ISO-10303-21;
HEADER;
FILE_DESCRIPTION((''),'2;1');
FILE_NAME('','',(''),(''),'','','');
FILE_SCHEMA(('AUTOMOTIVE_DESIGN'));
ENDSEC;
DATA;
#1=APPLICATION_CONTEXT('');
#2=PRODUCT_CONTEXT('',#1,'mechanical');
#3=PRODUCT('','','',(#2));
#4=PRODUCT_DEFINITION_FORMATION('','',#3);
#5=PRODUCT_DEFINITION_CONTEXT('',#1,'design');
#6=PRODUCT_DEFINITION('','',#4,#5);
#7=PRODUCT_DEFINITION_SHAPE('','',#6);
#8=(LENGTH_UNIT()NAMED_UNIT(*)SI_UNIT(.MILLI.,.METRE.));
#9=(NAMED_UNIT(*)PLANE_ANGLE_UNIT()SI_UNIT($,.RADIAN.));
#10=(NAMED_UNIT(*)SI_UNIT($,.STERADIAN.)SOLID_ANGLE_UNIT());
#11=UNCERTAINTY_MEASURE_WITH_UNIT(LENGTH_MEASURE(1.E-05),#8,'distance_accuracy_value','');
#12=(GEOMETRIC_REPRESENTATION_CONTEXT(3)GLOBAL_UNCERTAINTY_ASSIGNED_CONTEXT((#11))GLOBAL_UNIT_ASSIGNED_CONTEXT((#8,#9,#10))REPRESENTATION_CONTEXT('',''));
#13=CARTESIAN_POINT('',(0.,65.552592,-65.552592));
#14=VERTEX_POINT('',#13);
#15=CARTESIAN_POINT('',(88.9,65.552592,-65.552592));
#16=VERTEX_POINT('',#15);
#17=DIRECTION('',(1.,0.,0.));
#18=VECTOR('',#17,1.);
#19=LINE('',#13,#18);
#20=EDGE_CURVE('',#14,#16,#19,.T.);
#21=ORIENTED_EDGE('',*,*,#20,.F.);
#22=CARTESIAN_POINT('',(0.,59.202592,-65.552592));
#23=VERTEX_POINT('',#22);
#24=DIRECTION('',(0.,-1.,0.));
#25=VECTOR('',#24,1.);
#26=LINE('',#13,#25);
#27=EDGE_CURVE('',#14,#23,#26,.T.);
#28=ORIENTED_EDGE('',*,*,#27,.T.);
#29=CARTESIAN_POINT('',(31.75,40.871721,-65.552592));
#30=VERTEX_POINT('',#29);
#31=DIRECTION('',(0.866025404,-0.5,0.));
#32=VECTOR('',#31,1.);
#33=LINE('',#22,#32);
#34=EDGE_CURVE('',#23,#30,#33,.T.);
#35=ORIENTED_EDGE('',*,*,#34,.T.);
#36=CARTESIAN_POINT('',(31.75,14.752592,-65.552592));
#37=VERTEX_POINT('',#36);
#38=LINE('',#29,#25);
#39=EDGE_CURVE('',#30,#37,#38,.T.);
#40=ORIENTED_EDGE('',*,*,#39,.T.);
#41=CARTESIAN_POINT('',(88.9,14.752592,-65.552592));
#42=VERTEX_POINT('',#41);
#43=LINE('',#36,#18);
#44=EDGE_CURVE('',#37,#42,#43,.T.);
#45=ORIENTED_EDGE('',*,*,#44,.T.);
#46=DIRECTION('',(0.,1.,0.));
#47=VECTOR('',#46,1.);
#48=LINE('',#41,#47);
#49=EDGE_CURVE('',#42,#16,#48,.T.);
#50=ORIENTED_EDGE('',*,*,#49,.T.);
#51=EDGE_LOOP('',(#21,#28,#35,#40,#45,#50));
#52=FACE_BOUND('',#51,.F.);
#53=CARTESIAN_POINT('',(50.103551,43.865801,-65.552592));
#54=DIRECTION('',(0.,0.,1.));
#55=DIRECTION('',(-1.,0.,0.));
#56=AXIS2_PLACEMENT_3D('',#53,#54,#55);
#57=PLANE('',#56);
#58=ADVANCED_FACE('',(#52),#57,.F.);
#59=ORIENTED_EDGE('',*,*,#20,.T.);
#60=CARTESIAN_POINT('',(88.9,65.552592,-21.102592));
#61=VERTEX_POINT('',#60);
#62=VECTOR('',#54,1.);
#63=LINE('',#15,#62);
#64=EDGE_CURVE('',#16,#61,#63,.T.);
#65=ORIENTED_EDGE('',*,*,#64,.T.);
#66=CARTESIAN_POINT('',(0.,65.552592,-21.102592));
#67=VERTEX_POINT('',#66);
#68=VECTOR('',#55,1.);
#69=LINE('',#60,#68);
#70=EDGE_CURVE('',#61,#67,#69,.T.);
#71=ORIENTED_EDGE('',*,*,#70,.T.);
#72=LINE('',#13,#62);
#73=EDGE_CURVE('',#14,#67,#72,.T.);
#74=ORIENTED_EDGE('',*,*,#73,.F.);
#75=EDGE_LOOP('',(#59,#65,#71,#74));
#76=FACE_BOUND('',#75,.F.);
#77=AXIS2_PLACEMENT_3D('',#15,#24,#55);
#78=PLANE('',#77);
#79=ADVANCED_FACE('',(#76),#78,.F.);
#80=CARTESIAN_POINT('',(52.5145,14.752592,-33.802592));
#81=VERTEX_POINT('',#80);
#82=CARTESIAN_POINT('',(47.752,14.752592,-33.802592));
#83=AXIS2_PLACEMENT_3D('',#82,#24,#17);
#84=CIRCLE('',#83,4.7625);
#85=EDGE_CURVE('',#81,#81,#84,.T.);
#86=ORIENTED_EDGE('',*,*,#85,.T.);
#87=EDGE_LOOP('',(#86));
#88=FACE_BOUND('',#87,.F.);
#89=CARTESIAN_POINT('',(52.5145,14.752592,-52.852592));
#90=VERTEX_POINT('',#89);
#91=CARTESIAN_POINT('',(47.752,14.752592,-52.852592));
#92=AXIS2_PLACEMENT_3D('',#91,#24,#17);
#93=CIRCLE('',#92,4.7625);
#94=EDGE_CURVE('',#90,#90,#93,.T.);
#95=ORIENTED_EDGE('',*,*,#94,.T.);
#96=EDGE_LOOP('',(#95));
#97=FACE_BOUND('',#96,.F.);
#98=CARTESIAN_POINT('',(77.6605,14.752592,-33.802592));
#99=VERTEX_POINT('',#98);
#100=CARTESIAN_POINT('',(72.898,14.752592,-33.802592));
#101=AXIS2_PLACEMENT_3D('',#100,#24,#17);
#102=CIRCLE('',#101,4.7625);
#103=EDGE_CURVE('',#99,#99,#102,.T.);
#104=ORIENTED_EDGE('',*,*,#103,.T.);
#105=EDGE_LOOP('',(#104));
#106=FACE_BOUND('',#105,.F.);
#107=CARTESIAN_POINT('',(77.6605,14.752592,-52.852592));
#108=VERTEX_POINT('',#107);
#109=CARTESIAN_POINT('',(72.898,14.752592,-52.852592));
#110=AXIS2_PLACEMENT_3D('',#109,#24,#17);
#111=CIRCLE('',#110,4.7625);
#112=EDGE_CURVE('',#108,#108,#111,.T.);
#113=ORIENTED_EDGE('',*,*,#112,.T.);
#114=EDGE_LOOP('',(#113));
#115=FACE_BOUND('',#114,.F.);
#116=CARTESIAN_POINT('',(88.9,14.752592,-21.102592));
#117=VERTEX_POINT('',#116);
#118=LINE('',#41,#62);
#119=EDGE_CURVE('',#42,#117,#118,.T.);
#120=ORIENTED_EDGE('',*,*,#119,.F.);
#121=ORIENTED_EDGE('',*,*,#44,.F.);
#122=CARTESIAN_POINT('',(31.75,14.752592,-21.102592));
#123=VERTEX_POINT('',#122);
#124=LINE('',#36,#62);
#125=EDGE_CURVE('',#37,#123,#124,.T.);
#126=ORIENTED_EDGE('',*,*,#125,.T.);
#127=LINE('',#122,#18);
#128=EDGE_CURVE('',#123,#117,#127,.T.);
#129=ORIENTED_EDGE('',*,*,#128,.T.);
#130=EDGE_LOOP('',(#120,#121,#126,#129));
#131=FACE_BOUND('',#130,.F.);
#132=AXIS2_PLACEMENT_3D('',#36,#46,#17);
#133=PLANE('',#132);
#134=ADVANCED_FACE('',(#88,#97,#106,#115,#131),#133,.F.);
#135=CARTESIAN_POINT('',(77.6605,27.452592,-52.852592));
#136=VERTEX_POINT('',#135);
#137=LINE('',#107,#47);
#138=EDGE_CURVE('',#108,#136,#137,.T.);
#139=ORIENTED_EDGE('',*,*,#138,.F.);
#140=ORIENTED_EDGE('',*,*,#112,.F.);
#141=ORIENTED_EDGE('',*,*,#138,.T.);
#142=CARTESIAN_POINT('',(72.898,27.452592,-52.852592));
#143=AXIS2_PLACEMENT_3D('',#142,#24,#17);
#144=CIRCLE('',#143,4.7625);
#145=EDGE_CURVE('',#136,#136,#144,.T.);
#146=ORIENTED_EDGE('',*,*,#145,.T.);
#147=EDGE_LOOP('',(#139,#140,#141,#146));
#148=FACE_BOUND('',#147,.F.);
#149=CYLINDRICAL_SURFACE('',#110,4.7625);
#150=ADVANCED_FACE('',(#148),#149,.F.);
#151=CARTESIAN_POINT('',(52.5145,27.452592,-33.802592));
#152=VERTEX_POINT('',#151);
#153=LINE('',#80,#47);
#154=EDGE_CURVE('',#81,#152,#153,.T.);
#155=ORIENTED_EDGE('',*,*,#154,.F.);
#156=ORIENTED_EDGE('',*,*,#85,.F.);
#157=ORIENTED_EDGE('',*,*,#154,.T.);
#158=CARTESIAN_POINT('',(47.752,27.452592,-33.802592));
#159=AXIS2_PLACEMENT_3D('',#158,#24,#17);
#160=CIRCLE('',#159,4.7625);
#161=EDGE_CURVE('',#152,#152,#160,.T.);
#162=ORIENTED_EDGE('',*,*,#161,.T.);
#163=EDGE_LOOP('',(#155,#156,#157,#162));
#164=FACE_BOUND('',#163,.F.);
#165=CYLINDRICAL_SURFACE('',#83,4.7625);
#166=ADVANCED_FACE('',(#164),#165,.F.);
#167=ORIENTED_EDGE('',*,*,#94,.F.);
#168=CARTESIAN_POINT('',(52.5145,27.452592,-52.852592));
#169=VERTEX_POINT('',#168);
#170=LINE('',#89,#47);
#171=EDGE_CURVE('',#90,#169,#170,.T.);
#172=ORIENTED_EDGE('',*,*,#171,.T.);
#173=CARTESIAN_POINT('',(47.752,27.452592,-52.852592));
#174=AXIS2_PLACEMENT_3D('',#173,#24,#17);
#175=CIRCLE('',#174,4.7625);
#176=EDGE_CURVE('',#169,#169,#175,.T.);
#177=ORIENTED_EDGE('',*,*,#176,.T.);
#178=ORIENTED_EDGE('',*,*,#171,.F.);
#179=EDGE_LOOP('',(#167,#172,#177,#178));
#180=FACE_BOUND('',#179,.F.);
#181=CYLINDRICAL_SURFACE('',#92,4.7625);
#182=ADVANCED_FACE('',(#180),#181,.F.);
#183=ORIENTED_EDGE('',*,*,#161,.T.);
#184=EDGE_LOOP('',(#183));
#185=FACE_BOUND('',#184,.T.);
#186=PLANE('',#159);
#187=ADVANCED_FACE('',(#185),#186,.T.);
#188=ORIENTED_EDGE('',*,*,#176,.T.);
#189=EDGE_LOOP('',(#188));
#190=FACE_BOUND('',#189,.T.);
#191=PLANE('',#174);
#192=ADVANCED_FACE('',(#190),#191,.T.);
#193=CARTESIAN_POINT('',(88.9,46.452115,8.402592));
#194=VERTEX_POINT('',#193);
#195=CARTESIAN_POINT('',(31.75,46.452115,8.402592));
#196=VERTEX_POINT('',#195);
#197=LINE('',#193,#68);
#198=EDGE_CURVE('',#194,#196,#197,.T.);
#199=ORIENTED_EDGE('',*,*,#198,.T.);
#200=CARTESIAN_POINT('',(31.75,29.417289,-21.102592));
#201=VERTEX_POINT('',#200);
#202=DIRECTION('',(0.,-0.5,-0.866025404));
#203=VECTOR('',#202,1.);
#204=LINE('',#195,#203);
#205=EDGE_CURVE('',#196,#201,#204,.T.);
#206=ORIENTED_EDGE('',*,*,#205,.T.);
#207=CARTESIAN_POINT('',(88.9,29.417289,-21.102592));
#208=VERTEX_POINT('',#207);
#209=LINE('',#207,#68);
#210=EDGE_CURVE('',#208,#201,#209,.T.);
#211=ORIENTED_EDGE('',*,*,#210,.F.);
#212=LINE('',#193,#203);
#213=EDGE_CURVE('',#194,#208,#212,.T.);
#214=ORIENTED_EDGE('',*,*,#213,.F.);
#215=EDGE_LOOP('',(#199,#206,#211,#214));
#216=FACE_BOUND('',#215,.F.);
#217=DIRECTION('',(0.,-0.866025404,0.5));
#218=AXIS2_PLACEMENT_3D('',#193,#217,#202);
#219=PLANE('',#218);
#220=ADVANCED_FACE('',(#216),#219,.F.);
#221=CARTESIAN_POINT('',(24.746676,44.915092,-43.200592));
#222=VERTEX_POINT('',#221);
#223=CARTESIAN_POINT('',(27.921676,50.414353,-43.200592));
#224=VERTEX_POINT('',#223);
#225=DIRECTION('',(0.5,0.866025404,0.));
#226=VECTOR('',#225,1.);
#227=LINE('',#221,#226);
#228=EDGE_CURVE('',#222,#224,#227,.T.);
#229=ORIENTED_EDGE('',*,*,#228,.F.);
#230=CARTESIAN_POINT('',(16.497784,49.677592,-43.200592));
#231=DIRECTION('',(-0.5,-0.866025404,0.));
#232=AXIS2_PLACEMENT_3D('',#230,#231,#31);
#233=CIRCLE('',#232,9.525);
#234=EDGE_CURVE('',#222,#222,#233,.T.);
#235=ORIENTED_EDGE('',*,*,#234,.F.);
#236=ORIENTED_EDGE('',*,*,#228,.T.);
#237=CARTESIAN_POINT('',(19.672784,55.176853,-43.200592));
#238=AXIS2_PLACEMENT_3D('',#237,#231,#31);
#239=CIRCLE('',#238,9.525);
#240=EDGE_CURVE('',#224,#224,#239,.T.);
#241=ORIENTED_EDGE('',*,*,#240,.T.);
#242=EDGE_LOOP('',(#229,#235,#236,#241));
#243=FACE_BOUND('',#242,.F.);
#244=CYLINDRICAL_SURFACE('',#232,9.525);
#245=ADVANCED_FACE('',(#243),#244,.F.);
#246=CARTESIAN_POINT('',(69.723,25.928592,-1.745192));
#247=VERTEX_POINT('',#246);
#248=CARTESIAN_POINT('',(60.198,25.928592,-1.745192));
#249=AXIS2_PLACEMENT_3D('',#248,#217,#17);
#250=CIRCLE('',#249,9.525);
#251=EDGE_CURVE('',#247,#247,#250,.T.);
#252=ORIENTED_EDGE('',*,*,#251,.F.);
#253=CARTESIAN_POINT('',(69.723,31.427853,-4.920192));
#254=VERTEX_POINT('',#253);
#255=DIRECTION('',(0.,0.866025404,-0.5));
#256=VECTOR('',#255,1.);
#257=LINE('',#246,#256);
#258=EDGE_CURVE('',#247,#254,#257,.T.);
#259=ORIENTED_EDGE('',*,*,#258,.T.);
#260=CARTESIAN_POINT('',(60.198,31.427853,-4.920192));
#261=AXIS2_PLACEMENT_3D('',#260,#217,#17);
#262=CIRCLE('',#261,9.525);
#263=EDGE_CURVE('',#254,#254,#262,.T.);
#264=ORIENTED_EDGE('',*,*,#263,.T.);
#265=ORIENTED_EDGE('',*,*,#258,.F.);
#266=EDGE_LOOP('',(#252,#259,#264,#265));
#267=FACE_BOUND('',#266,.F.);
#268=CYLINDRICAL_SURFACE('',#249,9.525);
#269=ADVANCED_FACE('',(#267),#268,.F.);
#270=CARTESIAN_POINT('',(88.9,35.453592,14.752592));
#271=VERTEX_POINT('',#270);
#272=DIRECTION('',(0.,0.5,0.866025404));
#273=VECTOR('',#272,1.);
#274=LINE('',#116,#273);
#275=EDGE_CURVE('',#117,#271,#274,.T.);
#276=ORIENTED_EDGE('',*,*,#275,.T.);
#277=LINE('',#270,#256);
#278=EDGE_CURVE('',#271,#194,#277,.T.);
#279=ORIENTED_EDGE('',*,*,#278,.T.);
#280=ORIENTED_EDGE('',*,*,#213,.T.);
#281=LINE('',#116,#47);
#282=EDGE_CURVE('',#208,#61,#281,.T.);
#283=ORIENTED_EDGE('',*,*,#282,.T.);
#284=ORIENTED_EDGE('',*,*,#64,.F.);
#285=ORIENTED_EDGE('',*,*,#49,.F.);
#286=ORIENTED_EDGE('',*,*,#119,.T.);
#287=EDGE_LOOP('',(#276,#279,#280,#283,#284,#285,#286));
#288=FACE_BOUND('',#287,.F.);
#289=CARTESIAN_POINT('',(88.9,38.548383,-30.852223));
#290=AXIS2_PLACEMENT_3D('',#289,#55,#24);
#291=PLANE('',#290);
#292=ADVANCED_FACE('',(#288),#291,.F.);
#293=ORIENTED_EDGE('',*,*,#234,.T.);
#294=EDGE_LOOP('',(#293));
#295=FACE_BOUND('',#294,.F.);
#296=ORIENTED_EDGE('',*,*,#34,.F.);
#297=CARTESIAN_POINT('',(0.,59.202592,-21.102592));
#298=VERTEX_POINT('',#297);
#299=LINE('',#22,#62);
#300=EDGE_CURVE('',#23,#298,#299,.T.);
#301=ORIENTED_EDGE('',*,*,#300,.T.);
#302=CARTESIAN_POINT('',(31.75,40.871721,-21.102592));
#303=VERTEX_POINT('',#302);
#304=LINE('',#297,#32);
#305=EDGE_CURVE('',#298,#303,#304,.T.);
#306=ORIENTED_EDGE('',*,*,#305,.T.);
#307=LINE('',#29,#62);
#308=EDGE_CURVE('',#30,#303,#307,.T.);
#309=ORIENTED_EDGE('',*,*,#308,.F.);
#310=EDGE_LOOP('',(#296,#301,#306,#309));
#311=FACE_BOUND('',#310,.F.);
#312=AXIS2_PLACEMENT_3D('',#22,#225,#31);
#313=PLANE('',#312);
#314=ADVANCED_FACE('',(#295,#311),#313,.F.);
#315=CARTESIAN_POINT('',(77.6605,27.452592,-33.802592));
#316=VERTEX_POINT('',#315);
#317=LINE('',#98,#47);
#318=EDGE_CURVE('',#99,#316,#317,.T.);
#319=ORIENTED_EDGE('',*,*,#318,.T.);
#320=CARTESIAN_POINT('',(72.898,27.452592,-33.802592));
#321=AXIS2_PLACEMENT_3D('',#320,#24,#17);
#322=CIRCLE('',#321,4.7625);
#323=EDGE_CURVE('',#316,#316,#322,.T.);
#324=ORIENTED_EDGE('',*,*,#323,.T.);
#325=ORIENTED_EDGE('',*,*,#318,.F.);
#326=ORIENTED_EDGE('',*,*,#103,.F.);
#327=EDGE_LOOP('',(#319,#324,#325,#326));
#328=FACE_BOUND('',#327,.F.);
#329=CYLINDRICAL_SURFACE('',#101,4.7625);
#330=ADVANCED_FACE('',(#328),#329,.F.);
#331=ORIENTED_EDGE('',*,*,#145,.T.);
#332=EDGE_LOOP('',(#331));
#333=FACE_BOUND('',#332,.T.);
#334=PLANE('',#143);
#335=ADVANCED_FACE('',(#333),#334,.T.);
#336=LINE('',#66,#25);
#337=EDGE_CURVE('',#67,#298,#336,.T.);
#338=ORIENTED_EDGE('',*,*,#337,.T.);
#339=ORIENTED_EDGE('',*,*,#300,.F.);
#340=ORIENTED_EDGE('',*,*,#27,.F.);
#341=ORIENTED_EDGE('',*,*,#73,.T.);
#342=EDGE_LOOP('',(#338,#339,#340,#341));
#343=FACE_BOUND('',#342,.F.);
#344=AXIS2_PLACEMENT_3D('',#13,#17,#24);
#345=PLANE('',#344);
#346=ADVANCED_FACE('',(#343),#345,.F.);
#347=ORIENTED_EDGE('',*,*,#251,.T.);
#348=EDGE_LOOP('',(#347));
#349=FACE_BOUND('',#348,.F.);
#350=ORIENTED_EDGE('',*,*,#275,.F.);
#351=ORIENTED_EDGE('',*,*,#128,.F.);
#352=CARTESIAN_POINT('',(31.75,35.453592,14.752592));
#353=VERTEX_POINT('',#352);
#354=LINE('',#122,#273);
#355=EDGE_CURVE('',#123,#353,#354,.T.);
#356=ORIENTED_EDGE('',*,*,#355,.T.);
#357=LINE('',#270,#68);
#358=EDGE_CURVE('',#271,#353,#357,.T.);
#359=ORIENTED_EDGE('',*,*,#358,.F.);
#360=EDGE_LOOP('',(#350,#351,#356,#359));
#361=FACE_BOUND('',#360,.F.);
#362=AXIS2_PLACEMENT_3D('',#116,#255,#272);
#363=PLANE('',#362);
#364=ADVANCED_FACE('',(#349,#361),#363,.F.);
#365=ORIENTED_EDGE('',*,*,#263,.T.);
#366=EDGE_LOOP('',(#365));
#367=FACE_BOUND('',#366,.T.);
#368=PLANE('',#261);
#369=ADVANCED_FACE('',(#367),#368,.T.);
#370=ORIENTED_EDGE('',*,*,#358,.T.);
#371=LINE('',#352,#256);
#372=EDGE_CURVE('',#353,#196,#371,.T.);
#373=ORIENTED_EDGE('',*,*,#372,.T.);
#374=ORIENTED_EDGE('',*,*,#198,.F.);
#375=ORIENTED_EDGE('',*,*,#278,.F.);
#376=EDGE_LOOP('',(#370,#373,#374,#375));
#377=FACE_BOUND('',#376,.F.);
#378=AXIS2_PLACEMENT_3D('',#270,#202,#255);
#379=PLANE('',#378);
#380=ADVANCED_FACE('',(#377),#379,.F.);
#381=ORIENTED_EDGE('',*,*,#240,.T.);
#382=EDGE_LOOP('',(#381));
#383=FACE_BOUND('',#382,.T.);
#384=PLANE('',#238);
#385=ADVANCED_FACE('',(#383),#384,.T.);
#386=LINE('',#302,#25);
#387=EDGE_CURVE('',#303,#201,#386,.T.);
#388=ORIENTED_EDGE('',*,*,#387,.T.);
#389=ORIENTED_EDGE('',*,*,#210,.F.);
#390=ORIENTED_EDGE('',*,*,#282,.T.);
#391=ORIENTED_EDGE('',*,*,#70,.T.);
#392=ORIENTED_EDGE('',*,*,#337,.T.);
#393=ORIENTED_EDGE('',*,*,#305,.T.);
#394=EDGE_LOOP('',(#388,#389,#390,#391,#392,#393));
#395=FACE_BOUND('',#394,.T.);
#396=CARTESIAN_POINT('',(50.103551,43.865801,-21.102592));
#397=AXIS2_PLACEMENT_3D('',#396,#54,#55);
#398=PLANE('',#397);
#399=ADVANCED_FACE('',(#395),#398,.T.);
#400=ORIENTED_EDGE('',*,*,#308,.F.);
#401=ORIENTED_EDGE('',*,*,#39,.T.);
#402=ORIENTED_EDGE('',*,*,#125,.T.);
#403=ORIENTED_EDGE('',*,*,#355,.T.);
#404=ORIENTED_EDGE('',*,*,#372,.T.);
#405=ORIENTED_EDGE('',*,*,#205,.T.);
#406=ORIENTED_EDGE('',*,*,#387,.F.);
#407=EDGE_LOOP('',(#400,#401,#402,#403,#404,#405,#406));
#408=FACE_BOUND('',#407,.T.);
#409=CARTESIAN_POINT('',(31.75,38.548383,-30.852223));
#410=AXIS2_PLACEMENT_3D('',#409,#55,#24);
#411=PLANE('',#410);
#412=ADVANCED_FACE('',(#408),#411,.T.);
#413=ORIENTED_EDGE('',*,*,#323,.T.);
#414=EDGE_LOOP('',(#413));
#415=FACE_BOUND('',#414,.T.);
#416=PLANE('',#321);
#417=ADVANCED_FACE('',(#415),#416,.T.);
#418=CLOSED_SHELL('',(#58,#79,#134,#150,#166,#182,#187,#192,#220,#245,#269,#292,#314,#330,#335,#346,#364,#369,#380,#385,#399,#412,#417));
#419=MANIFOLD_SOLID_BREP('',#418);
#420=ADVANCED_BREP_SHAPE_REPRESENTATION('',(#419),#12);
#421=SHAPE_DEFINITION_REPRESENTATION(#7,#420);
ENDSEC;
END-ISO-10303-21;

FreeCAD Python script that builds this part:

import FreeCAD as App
import Part
import Sketcher
from FreeCAD import Vector
Q = App.Units.Quantity


def add_polygon(sketch, points):
    """Adds a closed chain of lines whose ends are joined by coincident constraints."""
    first, n = sketch.GeometryCount, len(points)
    for a, b in zip(points, points[1:] + points[:1]):
        sketch.addGeometry(Part.LineSegment(App.Vector(*a, 0), App.Vector(*b, 0)), False)
    for i in range(n):
        sketch.addConstraint(Sketcher.Constraint("Coincident", first + i, 2, first + (i + 1) % n, 1))

doc = App.newDocument("Part")
params = doc.addObject("Spreadsheet::Sheet", "Params")
for row, (alias, value) in enumerate([
    ("sketch1_height", "2 in"),
    ("sketch1_width", "3.5 in"),
    ("sketch1_width2", "2.25 in"),
    ("sketch1_height2", "0.25 in"),
    ("pad1_length", "1.75 in"),
    ("sketch2_diameter", "0.75 in"),
    ("pocket1_length", "0.25 in"),
    ("sketch3_height", "2 in"),
    ("sketch3_length", "0.5 in"),
    ("sketch3_width", "1.75 in"),
    ("sketch3_length2", "1.63 in"),
    ("pad2_length", "2.25 in"),
    ("sketch4_diameter", "0.75 in"),
    ("pocket2_length", "0.25 in"),
    ("sketch5_diameter", "0.375 in"),
    ("pocket3_length", "0.5 in"),
], start=1):
    params.set(f"A{row}", alias)
    params.set(f"B{row}", "=" + value)
    params.setAlias(f"B{row}", alias)

body = doc.addObject("PartDesign::Body", "Body")

# Sketch on XZ plane
sketch1 = doc.addObject("Sketcher::SketchObject", "Sketch")
body.addObject(sketch1)
sketch1.AttachmentSupport = (doc.XZ_Plane, [""])
sketch1.MapMode = "FlatFace"
add_polygon(sketch1, [(89, 0), (89, -6), (57, -25), (57, -51), (0, -51), (0, 0)])  # lines 0-5
sketch1.addConstraint([
    Sketcher.Constraint("Vertical", 0),
    Sketcher.Constraint("Vertical", 2),
    Sketcher.Constraint("Horizontal", 3),
    Sketcher.Constraint("Vertical", 4),
    Sketcher.Constraint("Horizontal", 5),
    Sketcher.Constraint("Coincident", 4, 2, -1, 1),
    Sketcher.Constraint("DistanceY", 4, 1, 4, 2, Q("2 in")),
    Sketcher.Constraint("DistanceX", 5, 1, 5, 2, Q("3.5 in")),
    Sketcher.Constraint("Angle", 1, Q("-150 deg")),
    Sketcher.Constraint("DistanceX", 3, 2, 3, 1, Q("2.25 in")),
    Sketcher.Constraint("DistanceY", 0, 2, 0, 1, Q("0.25 in")),
])
sketch1.setExpression("Constraints[12]", "Params.sketch1_height")
sketch1.setExpression("Constraints[13]", "Params.sketch1_width")
sketch1.setExpression("Constraints[15]", "Params.sketch1_width2")
sketch1.setExpression("Constraints[16]", "Params.sketch1_height2")
pad1 = doc.addObject("PartDesign::Pad", "Pad")
body.addObject(pad1)
pad1.Profile = sketch1
pad1.setExpression("Length", "Params.pad1_length")
pad1.Reversed = True

# Sketch on an angled plane
sketch2 = doc.addObject("Sketcher::SketchObject", "Sketch001")
body.addObject(sketch2)
sketch2.Placement = App.Placement(Vector(24.974631, 0, -43.257329), App.Rotation(Vector(-0.866025404, 0, -0.5), Vector(0, 1, 0), Vector(0.5, 0, -0.866025404), "ZXY"))
sketch2.addGeometry(Part.Circle(Vector(-55, 22, 0), Vector(0, 0, 1), 10), False)
sketch2.addConstraint([
    Sketcher.Constraint("Diameter", 0, Q("0.75 in")),
    Sketcher.Constraint("DistanceY", -1, 1, 0, 3, Q("0.88 in")),
    Sketcher.Constraint("DistanceX", 0, 3, -1, 1, 54.764658),
])
sketch2.setExpression("Constraints[0]", "Params.sketch2_diameter")
pocket1 = doc.addObject("PartDesign::Pocket", "Pocket")
body.addObject(pocket1)
pocket1.Profile = sketch2
pocket1.setExpression("Length", "Params.pocket1_length")

# Sketch on YZ plane
sketch3 = doc.addObject("Sketcher::SketchObject", "Sketch002")
body.addObject(sketch3)
sketch3.AttachmentSupport = (doc.YZ_Plane, [""])
sketch3.MapMode = "FlatFace"
add_polygon(sketch3, [(80, -30), (44, -51), (0, -51), (0, 0), (44, 0), (44, -36), (74, -19)])  # lines 0-6
sketch3.addConstraint([
    Sketcher.Constraint("Horizontal", 1),
    Sketcher.Constraint("Vertical", 2),
    Sketcher.Constraint("Horizontal", 3),
    Sketcher.Constraint("Vertical", 4),
    Sketcher.Constraint("Coincident", 2, 2, -1, 1),
    Sketcher.Constraint("Parallel", 0, 5),
    Sketcher.Constraint("Perpendicular", 5, 6),
    Sketcher.Constraint("Vertical", 0, 2, 3, 2),
    Sketcher.Constraint("DistanceY", 2, 1, 2, 2, Q("2 in")),
    Sketcher.Constraint("Angle", 0, Q("-150 deg")),
    Sketcher.Constraint("Distance", 6, Q("0.5 in")),
    Sketcher.Constraint("DistanceX", 1, 2, 1, 1, Q("1.75 in")),
    Sketcher.Constraint("Distance", 0, Q("1.63 in")),
])
sketch3.setExpression("Constraints[15]", "Params.sketch3_height")
sketch3.setExpression("Constraints[17]", "Params.sketch3_length")
sketch3.setExpression("Constraints[18]", "Params.sketch3_width")
sketch3.setExpression("Constraints[19]", "Params.sketch3_length2")
pad2 = doc.addObject("PartDesign::Pad", "Pad001")
body.addObject(pad2)
pad2.Profile = sketch3
pad2.setExpression("Length", "Params.pad2_length")

# Sketch on an angled plane
sketch4 = doc.addObject("Sketcher::SketchObject", "Sketch003")
body.addObject(sketch4)
sketch4.Placement = App.Placement(Vector(0, 33.109545, -57.347415), App.Rotation(Vector(-1, 0, 0), Vector(0, 0.866025404, 0.5), Vector(0, 0.5, -0.866025404), "ZXY"))
sketch4.addGeometry(Part.Circle(Vector(-29, 35, 0), Vector(0, 0, 1), 10), False)
sketch4.addConstraint([
    Sketcher.Constraint("Diameter", 0, Q("0.75 in")),
    Sketcher.Constraint("DistanceX", 0, 3, -1, 1, Q("1.13 in")),
    Sketcher.Constraint("DistanceY", -1, 1, 0, 3, 35.446829),
])
sketch4.setExpression("Constraints[0]", "Params.sketch4_diameter")
pocket2 = doc.addObject("PartDesign::Pocket", "Pocket001")
body.addObject(pocket2)
pocket2.Profile = sketch4
pocket2.setExpression("Length", "Params.pocket2_length")

# Sketch on XY plane
sketch5 = doc.addObject("Sketcher::SketchObject", "Sketch004")
body.addObject(sketch5)
sketch5.AttachmentSupport = (doc.XY_Plane, [""])
sketch5.MapMode = "FlatFace"
sketch5.AttachmentOffset = App.Placement(Vector(0, 0, -2 * 25.4), App.Rotation())
sketch5.addGeometry([
    Part.Circle(Vector(41.1, 31.8, 0), Vector(0, 0, 1), 4.8),
    Part.Circle(Vector(16, 31.8, 0), Vector(0, 0, 1), 4.8),
    Part.Circle(Vector(16, 12.7, 0), Vector(0, 0, 1), 4.8),
    Part.Circle(Vector(41.1, 12.7, 0), Vector(0, 0, 1), 4.8),
], False)
sketch5.addConstraint([
    Sketcher.Constraint("Equal", 0, 1),
    Sketcher.Constraint("Equal", 1, 2),
    Sketcher.Constraint("Equal", 2, 3),
    Sketcher.Constraint("Horizontal", 0, 3, 1, 3),
    Sketcher.Constraint("Horizontal", 2, 3, 3, 3),
    Sketcher.Constraint("Vertical", 1, 3, 2, 3),
    Sketcher.Constraint("Vertical", 0, 3, 3, 3),
    Sketcher.Constraint("Diameter", 0, Q("0.375 in")),
    Sketcher.Constraint("DistanceY", -1, 1, 2, 3, Q("0.5 in")),
    Sketcher.Constraint("DistanceX", -1, 1, 0, 3, Q("1.62 in")),
    Sketcher.Constraint("DistanceY", -1, 1, 0, 3, Q("1.25 in")),
    Sketcher.Constraint("DistanceX", -1, 1, 1, 3, Q("0.63 in")),
])
sketch5.setExpression("Constraints[7]", "Params.sketch5_diameter")
pocket3 = doc.addObject("PartDesign::Pocket", "Pocket002")
body.addObject(pocket3)
pocket3.Profile = sketch5
pocket3.setExpression("Length", "Params.pocket3_length")
pocket3.Reversed = True
body2 = doc.addObject("PartDesign::Body", "Body001")
doc.recompute()

body.Placement = App.Placement(Vector(88.9, 65.552592, -65.552592), App.Rotation(Vector(0, 0.707106781, 0.707106781), 180))
boolean = doc.addObject("PartDesign::Boolean", "Boolean")
body2.addObject(boolean)
boolean.Type = "Fuse"
boolean.addObjects([body])

doc.recompute()
